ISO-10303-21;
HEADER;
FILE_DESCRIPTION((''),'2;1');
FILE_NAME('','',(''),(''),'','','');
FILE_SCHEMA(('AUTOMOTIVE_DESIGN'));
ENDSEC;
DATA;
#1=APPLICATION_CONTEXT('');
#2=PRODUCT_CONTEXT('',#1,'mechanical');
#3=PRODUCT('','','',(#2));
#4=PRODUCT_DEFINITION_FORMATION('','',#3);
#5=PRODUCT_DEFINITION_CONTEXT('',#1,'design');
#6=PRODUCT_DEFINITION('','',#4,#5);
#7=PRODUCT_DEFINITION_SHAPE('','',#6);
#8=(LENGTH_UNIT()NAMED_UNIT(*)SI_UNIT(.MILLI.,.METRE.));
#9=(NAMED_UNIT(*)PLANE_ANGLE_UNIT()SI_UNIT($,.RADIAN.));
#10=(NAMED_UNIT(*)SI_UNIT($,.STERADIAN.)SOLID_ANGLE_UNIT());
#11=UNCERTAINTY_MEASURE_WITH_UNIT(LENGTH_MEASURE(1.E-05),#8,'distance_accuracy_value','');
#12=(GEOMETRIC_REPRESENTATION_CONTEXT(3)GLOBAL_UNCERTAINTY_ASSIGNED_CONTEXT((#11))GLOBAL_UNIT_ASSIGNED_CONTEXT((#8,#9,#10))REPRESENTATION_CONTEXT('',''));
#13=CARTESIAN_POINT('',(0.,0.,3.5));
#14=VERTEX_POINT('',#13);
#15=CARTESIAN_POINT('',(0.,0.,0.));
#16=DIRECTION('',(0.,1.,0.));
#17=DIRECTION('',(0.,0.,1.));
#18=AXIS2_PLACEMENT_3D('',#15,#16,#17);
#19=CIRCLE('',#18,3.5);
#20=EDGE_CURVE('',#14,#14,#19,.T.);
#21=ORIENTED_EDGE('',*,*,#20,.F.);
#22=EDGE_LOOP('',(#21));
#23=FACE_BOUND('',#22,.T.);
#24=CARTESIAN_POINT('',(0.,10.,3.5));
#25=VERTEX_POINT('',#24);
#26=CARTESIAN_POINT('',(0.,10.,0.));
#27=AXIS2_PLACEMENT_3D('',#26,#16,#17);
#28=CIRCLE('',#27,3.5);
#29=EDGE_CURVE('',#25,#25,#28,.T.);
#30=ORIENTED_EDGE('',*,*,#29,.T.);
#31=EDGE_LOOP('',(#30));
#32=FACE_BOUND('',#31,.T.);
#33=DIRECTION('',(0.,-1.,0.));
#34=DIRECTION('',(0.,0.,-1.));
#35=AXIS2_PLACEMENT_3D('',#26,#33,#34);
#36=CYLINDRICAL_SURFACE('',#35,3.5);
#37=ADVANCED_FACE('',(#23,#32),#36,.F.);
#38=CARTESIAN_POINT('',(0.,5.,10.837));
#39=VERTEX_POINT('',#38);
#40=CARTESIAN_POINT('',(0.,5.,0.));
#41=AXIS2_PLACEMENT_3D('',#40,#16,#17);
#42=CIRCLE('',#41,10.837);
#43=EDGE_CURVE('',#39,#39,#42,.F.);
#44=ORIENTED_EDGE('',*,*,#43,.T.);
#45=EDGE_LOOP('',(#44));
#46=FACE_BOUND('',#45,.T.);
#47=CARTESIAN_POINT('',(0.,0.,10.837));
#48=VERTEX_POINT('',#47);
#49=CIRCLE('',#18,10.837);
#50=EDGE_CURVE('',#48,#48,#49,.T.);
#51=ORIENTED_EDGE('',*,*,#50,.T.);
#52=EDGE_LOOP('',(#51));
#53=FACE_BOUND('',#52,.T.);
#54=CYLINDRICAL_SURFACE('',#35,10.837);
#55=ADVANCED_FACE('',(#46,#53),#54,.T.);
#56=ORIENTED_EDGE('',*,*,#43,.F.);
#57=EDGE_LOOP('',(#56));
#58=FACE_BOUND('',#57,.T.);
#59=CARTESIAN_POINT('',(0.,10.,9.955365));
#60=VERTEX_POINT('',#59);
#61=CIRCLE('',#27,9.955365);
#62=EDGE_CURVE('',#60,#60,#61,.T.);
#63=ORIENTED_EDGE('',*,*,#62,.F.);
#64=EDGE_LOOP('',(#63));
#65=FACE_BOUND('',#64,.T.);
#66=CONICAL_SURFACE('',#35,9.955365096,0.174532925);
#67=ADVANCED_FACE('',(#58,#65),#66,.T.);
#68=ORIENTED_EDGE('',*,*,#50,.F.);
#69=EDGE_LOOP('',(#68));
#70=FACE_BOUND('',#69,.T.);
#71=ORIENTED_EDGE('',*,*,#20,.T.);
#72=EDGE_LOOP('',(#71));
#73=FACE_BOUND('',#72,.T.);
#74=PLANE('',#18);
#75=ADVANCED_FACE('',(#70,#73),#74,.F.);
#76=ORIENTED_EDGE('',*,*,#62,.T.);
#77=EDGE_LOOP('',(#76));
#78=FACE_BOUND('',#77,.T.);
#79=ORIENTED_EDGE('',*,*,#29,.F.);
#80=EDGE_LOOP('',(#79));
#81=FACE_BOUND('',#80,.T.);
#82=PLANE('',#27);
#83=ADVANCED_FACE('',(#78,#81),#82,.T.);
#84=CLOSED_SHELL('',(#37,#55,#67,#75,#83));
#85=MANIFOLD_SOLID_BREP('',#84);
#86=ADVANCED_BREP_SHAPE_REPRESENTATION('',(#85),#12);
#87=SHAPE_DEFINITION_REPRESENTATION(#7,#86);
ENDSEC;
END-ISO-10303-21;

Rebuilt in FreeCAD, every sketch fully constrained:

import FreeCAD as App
import Part
import Sketcher
Q = App.Units.Quantity


def edges_at(feature, points):
    """Names of the edges that pass closest to the given points."""
    edges = feature.Shape.Edges
    near = lambda p: min(range(len(edges)), key=lambda i: edges[i].distToShape(Part.Vertex(*p))[0])
    return sorted({f"Edge{near(p) + 1}" for p in points})

doc = App.newDocument("Part")
params = doc.addObject("Spreadsheet::Sheet", "Params")
for row, (alias, value) in enumerate([
    ("sketch1_diameter", "7 mm"),
    ("pad1_length", "10 mm"),
    ("chamfer_size", "5 mm"),
    ("chamfer_size2", "0.881635 mm"),
], start=1):
    params.set(f"A{row}", alias)
    params.set(f"B{row}", "=" + value)
    params.setAlias(f"B{row}", alias)

body = doc.addObject("PartDesign::Body", "Body")

sketch1 = body.newObject("Sketcher::SketchObject", "Sketch")
sketch1.AttachmentSupport = (doc.getObject("XZ_Plane"), [""])
sketch1.MapMode = "FlatFace"
sketch1.addGeometry(Part.Circle(App.Vector(0, 0, 0), App.Vector(0, 0, 1), 10.837), False)
sketch1.addGeometry(Part.Circle(App.Vector(0, 0, 0), App.Vector(0, 0, 1), 3.5), False)
sketch1.addConstraint(Sketcher.Constraint("Coincident", 0, 3, -1, 1))
sketch1.addConstraint(Sketcher.Constraint("Coincident", 1, 3, -1, 1))
sketch1.addConstraint(Sketcher.Constraint("Diameter", 1, Q("7 mm")))
sketch1.addConstraint(Sketcher.Constraint("Diameter", 0, Q("21.674 mm")))
sketch1.setExpression("Constraints[2]", "Params.sketch1_diameter")
pad1 = body.newObject("PartDesign::Pad", "Pad")
pad1.Profile = sketch1
pad1.setExpression("Length", "Params.pad1_length")
pad1.Reversed = True
doc.recompute()

chamfer = body.newObject("PartDesign::Chamfer", "Chamfer")
chamfer.Base = (pad1, edges_at(pad1, [(0, 10, -10.837)]))
chamfer.ChamferType = "Two distances"
chamfer.setExpression("Size", "Params.chamfer_size")
chamfer.setExpression("Size2", "Params.chamfer_size2")

doc.recompute()
